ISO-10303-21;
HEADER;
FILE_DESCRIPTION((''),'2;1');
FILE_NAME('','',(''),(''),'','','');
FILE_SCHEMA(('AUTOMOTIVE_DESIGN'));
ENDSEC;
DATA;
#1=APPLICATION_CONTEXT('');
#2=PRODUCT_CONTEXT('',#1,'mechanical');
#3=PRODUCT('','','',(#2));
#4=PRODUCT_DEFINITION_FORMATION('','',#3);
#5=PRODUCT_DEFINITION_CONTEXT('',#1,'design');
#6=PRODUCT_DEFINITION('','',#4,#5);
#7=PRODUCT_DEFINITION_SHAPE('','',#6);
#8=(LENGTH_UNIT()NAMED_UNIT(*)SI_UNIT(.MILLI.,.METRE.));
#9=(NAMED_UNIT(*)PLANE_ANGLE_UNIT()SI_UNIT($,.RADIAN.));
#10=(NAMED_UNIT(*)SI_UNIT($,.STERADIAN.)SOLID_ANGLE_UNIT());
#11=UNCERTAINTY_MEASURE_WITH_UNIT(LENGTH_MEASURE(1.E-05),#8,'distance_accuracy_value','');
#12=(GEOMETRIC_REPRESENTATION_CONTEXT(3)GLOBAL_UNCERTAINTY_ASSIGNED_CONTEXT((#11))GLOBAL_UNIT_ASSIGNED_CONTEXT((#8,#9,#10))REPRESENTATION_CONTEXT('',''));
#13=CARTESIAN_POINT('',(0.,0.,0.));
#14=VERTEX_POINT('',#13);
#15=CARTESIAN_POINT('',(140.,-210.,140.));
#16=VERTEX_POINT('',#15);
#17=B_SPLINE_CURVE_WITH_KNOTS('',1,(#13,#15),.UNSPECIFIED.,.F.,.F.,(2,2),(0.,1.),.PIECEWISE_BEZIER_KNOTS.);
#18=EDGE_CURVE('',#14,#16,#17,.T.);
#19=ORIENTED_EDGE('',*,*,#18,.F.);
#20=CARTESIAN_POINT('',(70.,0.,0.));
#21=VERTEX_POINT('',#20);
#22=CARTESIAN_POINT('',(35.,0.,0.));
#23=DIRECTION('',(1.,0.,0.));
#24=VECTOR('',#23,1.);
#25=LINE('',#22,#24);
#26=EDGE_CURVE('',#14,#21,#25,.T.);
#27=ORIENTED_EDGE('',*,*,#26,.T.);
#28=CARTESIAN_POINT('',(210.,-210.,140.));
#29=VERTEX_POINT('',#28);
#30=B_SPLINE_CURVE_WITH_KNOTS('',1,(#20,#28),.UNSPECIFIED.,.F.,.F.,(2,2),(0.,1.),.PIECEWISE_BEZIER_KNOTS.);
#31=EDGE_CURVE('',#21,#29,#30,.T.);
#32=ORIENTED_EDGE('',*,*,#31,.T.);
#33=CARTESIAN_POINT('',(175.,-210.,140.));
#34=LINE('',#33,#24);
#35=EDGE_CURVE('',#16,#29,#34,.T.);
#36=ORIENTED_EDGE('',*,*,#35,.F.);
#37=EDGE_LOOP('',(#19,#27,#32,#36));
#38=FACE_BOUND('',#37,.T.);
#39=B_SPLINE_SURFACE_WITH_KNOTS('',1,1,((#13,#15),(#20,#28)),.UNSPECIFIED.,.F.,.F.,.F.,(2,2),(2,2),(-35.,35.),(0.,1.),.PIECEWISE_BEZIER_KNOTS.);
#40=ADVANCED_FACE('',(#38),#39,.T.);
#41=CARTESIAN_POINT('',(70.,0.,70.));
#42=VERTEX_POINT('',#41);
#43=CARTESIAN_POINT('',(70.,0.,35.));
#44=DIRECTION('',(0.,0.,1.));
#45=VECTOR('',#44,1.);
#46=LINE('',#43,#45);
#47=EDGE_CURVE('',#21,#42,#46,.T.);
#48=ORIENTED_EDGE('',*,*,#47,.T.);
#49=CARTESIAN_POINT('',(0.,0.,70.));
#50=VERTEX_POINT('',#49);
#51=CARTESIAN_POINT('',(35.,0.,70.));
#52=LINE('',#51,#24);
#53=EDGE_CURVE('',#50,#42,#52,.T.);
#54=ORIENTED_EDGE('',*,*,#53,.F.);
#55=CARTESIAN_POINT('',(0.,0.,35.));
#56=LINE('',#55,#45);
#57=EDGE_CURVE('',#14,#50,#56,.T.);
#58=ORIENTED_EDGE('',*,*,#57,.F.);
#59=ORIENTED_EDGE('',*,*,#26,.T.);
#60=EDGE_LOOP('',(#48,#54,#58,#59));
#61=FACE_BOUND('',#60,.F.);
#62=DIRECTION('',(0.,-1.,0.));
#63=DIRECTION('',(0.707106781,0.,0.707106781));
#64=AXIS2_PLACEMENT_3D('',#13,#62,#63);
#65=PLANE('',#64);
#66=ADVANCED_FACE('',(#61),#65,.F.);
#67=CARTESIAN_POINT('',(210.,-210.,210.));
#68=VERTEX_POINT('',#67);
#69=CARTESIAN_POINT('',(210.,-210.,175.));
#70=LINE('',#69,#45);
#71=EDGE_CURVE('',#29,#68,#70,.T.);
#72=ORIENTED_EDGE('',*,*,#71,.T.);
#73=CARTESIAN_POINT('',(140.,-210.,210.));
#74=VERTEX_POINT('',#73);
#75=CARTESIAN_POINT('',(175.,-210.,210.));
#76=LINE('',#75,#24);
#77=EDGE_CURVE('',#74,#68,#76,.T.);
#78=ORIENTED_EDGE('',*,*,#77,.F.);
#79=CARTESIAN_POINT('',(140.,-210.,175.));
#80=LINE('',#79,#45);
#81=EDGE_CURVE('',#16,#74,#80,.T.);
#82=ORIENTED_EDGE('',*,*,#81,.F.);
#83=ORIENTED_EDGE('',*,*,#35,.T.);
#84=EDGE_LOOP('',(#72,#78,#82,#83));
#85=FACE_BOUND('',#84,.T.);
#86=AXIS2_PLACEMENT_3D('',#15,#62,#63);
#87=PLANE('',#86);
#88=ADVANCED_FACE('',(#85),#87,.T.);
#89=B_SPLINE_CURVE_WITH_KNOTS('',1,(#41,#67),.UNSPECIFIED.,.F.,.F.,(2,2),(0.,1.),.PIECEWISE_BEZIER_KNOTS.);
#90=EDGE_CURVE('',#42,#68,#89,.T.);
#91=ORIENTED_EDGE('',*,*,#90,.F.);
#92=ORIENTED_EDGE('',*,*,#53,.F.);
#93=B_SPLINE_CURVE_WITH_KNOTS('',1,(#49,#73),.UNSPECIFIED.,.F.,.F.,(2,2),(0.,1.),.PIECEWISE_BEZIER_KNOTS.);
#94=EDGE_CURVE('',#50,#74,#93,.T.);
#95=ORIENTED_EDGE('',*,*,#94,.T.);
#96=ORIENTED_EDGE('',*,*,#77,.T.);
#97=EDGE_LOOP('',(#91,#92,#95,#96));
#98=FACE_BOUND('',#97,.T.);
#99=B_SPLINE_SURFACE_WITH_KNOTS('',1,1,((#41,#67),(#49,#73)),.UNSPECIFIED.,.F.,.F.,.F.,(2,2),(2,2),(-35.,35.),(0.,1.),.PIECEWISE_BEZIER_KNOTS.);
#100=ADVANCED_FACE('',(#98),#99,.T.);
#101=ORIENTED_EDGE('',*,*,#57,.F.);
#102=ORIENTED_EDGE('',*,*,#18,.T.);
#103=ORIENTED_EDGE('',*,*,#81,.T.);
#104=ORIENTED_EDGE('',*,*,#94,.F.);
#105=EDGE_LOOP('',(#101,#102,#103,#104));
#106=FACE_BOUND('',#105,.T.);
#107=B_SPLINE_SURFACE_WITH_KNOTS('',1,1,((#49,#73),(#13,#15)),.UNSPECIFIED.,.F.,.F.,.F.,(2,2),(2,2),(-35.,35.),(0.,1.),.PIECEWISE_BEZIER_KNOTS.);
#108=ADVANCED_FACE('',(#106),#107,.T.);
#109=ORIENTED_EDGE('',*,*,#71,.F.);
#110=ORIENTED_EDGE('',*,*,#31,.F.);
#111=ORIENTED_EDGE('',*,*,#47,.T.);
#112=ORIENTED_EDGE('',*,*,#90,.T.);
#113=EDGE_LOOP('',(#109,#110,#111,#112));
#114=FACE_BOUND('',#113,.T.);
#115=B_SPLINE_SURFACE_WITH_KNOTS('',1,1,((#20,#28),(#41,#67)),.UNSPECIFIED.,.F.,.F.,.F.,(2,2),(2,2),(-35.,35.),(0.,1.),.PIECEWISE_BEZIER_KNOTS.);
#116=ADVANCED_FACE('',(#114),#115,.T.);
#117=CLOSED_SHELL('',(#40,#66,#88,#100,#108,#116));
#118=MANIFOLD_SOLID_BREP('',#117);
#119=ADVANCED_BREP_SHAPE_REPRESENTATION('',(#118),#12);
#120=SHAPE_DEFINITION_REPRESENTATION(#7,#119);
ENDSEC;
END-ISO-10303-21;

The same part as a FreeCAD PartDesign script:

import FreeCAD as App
import Part
import Sketcher

V = App.Vector


def add_polygon(sketch, points):
    """Adds a closed chain of lines whose ends are joined by coincident constraints."""
    first, n = sketch.GeometryCount, len(points)
    for a, b in zip(points, points[1:] + points[:1]):
        sketch.addGeometry(Part.LineSegment(App.Vector(*a, 0), App.Vector(*b, 0)), False)
    for i in range(n):
        sketch.addConstraint(Sketcher.Constraint("Coincident", first + i, 2, first + (i + 1) % n, 1))

doc = App.newDocument("Part")
body = doc.addObject("PartDesign::Body", "Body")

# Sketch on XZ plane
sketch1 = body.newObject("Sketcher::SketchObject", "Sketch")
sketch1.AttachmentSupport = (doc.getObject("XZ_Plane"), [""])
sketch1.MapMode = "FlatFace"
add_polygon(sketch1, [(0, 70), (0, 0), (70, 0), (70, 70)])  # lines 0-3
sketch1.addConstraint(Sketcher.Constraint("Vertical", 0))
sketch1.addConstraint(Sketcher.Constraint("Horizontal", 1))
sketch1.addConstraint(Sketcher.Constraint("Vertical", 2))
sketch1.addConstraint(Sketcher.Constraint("Horizontal", 3))
sketch1.addConstraint(Sketcher.Constraint("Coincident", 0, 2, -1, 1))
sketch1.addConstraint(Sketcher.Constraint("Equal", 3, 0))
sketch1.addConstraint(Sketcher.Constraint("DistanceX", 1, 1, 1, 2, 70.0))

# Sketch on XZ plane
sketch2 = body.newObject("Sketcher::SketchObject", "Sketch001")
sketch2.AttachmentSupport = (doc.getObject("XZ_Plane"), [""])
sketch2.MapMode = "FlatFace"
sketch2.AttachmentOffset = App.Placement(V(0, 0, 210), App.Rotation())
add_polygon(sketch2, [(140, 210), (140, 140), (210, 140), (210, 210)])  # lines 0-3
sketch2.addConstraint(Sketcher.Constraint("Vertical", 0))
sketch2.addConstraint(Sketcher.Constraint("Horizontal", 1))
sketch2.addConstraint(Sketcher.Constraint("Vertical", 2))
sketch2.addConstraint(Sketcher.Constraint("Horizontal", 3))
sketch2.addConstraint(Sketcher.Constraint("Equal", 3, 0))
sketch2.addConstraint(Sketcher.Constraint("DistanceX", 1, 1, 1, 2, 70.0))
sketch2.addConstraint(Sketcher.Constraint("DistanceX", -1, 1, 0, 2, 140.0))
sketch2.addConstraint(Sketcher.Constraint("DistanceY", -1, 1, 0, 2, 140.0))

additiveloft = body.newObject("PartDesign::AdditiveLoft", "AdditiveLoft")
additiveloft.Profile = sketch1
additiveloft.Sections = [sketch2]

doc.recompute()
